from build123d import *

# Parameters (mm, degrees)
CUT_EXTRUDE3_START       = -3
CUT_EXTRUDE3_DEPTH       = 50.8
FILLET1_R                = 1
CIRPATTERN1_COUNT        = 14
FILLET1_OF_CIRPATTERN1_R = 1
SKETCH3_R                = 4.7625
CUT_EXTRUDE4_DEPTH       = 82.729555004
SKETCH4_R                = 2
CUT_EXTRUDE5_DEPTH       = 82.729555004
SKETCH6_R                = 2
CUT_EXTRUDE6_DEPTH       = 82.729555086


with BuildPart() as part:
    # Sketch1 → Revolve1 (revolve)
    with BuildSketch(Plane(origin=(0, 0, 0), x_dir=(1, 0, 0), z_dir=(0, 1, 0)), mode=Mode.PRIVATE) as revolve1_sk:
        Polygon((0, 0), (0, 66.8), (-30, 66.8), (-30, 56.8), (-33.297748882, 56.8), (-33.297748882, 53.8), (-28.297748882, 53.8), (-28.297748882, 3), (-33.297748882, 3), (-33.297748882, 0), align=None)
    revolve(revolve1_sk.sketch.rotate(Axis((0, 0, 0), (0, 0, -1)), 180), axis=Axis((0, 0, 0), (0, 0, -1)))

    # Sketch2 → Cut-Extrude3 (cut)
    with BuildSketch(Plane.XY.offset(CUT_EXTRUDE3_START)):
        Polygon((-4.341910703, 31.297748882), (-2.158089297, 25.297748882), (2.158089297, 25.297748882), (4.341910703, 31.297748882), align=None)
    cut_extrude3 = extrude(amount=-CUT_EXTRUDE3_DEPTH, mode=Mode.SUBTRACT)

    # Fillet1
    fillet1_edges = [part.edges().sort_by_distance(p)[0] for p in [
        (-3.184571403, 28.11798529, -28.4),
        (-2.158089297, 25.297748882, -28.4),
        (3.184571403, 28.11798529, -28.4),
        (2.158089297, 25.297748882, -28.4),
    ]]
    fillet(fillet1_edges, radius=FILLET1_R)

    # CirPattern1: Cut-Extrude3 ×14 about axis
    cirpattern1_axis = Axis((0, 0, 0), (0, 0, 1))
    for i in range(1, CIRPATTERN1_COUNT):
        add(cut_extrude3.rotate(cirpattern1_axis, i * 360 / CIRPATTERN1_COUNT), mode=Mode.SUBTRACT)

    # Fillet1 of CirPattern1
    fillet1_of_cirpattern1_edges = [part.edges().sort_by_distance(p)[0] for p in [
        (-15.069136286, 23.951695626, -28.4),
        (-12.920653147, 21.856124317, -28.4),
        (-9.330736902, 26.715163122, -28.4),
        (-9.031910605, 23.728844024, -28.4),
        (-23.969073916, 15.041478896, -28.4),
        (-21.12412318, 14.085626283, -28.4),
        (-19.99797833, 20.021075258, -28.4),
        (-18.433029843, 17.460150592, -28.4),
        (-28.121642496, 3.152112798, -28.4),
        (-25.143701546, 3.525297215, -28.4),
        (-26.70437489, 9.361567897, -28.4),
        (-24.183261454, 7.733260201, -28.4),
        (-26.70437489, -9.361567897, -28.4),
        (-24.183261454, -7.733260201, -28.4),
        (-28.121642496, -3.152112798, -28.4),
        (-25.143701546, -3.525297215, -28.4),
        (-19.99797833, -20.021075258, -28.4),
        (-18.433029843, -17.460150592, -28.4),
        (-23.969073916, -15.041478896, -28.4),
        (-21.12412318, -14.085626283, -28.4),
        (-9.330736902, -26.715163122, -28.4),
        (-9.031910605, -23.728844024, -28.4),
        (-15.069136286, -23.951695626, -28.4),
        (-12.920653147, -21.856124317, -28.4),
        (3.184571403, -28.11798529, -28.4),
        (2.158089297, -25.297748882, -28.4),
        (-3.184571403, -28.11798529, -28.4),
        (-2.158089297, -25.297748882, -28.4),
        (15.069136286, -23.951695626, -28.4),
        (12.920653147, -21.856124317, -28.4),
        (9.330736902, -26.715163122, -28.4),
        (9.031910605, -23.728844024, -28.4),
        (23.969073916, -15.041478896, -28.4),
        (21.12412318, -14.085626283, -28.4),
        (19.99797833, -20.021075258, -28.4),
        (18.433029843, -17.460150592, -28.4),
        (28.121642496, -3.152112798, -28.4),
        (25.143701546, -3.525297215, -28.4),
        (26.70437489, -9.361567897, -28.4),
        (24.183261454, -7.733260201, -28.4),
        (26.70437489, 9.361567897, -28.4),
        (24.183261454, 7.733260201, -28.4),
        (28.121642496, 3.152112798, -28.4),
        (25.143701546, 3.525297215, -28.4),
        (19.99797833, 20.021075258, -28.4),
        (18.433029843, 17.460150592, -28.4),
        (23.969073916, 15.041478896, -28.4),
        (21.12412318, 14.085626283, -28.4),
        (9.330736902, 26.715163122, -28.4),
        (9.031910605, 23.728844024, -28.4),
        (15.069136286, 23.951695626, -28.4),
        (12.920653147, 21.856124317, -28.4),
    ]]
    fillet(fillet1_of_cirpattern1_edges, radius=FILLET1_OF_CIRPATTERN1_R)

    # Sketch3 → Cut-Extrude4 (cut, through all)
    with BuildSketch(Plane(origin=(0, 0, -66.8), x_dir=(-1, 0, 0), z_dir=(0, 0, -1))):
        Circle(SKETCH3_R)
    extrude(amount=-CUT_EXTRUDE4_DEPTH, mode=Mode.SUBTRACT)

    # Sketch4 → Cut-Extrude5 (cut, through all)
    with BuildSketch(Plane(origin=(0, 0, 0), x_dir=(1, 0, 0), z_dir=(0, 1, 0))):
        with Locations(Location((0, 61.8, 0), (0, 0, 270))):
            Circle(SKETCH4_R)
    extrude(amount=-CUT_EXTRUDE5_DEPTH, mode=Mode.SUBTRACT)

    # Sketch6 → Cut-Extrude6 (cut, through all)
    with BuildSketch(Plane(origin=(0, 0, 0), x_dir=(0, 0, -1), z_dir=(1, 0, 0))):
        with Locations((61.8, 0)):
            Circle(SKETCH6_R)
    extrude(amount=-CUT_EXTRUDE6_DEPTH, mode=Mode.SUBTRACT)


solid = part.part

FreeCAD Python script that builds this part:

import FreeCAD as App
import Part
import Sketcher

V = App.Vector
Q = App.Units.Quantity


def edges_at(feature, points):
    """Names of the edges that pass closest to the given points."""
    edges = feature.Shape.Edges
    near = lambda p: min(range(len(edges)), key=lambda i: edges[i].distToShape(Part.Vertex(*p))[0])
    return sorted({f"Edge{near(p) + 1}" for p in points})

doc = App.newDocument("Part")
body = doc.addObject("PartDesign::Body", "Body")

sketch1 = body.newObject("Sketcher::SketchObject", "Sketch")
sketch1.AttachmentSupport = (doc.getObject("XZ_Plane"), [""])
sketch1.MapMode = "FlatFace"
sketch1.addGeometry([
    Part.LineSegment(V(0, 0, 0), V(0, -66.8, 0)),
    Part.LineSegment(V(0, -66.8, 0), V(-30, -66.8, 0)),
    Part.LineSegment(V(-30, -66.8, 0), V(-30, -56.8, 0)),
    Part.LineSegment(V(-30, -56.8, 0), V(-33.3, -56.8, 0)),
    Part.LineSegment(V(-33.3, -56.8, 0), V(-33.3, -53.8, 0)),
    Part.LineSegment(V(-33.3, -53.8, 0), V(-28.3, -53.8, 0)),
    Part.LineSegment(V(-28.3, -53.8, 0), V(-28.3, -3, 0)),
    Part.LineSegment(V(-28.3, -3, 0), V(-33.3, -3, 0)),
    Part.LineSegment(V(-33.3, -3, 0), V(-33.3, 0, 0)),
    Part.LineSegment(V(-33.3, 0, 0), V(0, 0, 0)),
], False)
sketch1.addConstraint([
    Sketcher.Constraint("Coincident", 0, 2, 1, 1),
    Sketcher.Constraint("Coincident", 1, 2, 2, 1),
    Sketcher.Constraint("Coincident", 2, 2, 3, 1),
    Sketcher.Constraint("Coincident", 3, 2, 4, 1),
    Sketcher.Constraint("Coincident", 4, 2, 5, 1),
    Sketcher.Constraint("Coincident", 5, 2, 6, 1),
    Sketcher.Constraint("Coincident", 6, 2, 7, 1),
    Sketcher.Constraint("Coincident", 7, 2, 8, 1),
    Sketcher.Constraint("Coincident", 8, 2, 9, 1),
    Sketcher.Constraint("Coincident", 9, 2, 0, 1),
    Sketcher.Constraint("Vertical", 0),
    Sketcher.Constraint("Horizontal", 1),
    Sketcher.Constraint("Vertical", 2),
    Sketcher.Constraint("Horizontal", 3),
    Sketcher.Constraint("Vertical", 4),
    Sketcher.Constraint("Horizontal", 5),
    Sketcher.Constraint("Vertical", 6),
    Sketcher.Constraint("Horizontal", 7),
    Sketcher.Constraint("Vertical", 8),
    Sketcher.Constraint("Horizontal", 9),
    Sketcher.Constraint("Coincident", 9, 2, -1, 1),
    Sketcher.Constraint("Vertical", 4, 2, 7, 2),
    Sketcher.Constraint("Equal", 4, 8),
    Sketcher.Constraint("DistanceX", 1, 2, 1, 1, 30.0),
    Sketcher.Constraint("DistanceX", 5, 1, 5, 2, 5.0),
    Sketcher.Constraint("DistanceY", 2, 1, 2, 2, 10.0),
    Sketcher.Constraint("DistanceY", 4, 1, 4, 2, 3.0),
    Sketcher.Constraint("DistanceY", 0, 2, 0, 1, 66.8),
    Sketcher.Constraint("DistanceX", 3, 2, 3, 1, 3.297749),
])
revolution = body.newObject("PartDesign::Revolution", "Revolution")
revolution.Profile = sketch1
revolution.ReferenceAxis = (sketch1, ["V_Axis"])
revolution.Angle = 360

sketch2 = body.newObject("Sketcher::SketchObject", "Sketch001")
sketch2.AttachmentSupport = (doc.getObject("XY_Plane"), [""])
sketch2.MapMode = "FlatFace"
sketch2.AttachmentOffset = App.Placement(V(0, 0, -3), App.Rotation())
sketch2.addGeometry([
    Part.LineSegment(V(-4.3, 31.3, 0), V(-2.2, 25.3, 0)),
    Part.LineSegment(V(-2.2, 25.3, 0), V(2.2, 25.3, 0)),
    Part.LineSegment(V(2.2, 25.3, 0), V(4.3, 31.3, 0)),
    Part.LineSegment(V(4.3, 31.3, 0), V(-4.3, 31.3, 0)),
], False)
sketch2.addConstraint([
    Sketcher.Constraint("Coincident", 0, 2, 1, 1),
    Sketcher.Constraint("Coincident", 1, 2, 2, 1),
    Sketcher.Constraint("Coincident", 2, 2, 3, 1),
    Sketcher.Constraint("Coincident", 3, 2, 0, 1),
    Sketcher.Constraint("Horizontal", 1),
    Sketcher.Constraint("Horizontal", 3),
    Sketcher.Constraint("Equal", 0, 2),
    Sketcher.Constraint("Angle", 0, Q("-70 deg")),
    Sketcher.Constraint("DistanceY", 1, 2, 2, 2, 6.0),
    Sketcher.Constraint("DistanceX", 0, 2, 2, 2, 6.5),
    Sketcher.Constraint("DistanceX", 0, 2, -1, 1, 2.158089),
    Sketcher.Constraint("DistanceY", -1, 1, 0, 2, 25.297749),
])
pocket1 = body.newObject("PartDesign::Pocket", "Pocket")
pocket1.Profile = sketch2
pocket1.Length = 50.8
doc.recompute()

fillet = body.newObject("PartDesign::Fillet", "Fillet")
fillet.Base = (pocket1, edges_at(pocket1, [
    (-3.185, 28.118, -28.4),
    (-2.158, 25.298, -28.4),
    (3.185, 28.118, -28.4),
    (2.158, 25.298, -28.4),
]))
fillet.Radius = 1
doc.recompute()

polarpattern = body.newObject("PartDesign::PolarPattern", "PolarPattern")
polarpattern.Originals = [pocket1]
polarpattern.Axis = (doc.getObject("Z_Axis"), [""])
polarpattern.Angle = 360
polarpattern.Occurrences = 14
body.Tip = polarpattern
doc.recompute()

fillet2 = body.newObject("PartDesign::Fillet", "Fillet001")
fillet2.Base = (polarpattern, edges_at(polarpattern, [
    (-15.069, 23.952, -28.4),
    (-12.921, 21.856, -28.4),
    (-9.331, 26.715, -28.4),
    (-9.032, 23.729, -28.4),
    (-23.969, 15.041, -28.4),
    (-21.124, 14.086, -28.4),
    (-19.998, 20.021, -28.4),
    (-18.433, 17.46, -28.4),
    (-28.122, 3.152, -28.4),
    (-25.144, 3.525, -28.4),
    (-26.704, 9.362, -28.4),
    (-24.183, 7.733, -28.4),
    (-26.704, -9.362, -28.4),
    (-24.183, -7.733, -28.4),
    (-28.122, -3.152, -28.4),
    (-25.144, -3.525, -28.4),
    (-19.998, -20.021, -28.4),
    (-18.433, -17.46, -28.4),
    (-23.969, -15.041, -28.4),
    (-21.124, -14.086, -28.4),
    (-9.331, -26.715, -28.4),
    (-9.032, -23.729, -28.4),
    (-15.069, -23.952, -28.4),
    (-12.921, -21.856, -28.4),
    (3.185, -28.118, -28.4),
    (2.158, -25.298, -28.4),
    (-3.185, -28.118, -28.4),
    (-2.158, -25.298, -28.4),
    (15.069, -23.952, -28.4),
    (12.921, -21.856, -28.4),
    (9.331, -26.715, -28.4),
    (9.032, -23.729, -28.4),
    (23.969, -15.041, -28.4),
    (21.124, -14.086, -28.4),
    (19.998, -20.021, -28.4),
    (18.433, -17.46, -28.4),
    (28.122, -3.152, -28.4),
    (25.144, -3.525, -28.4),
    (26.704, -9.362, -28.4),
    (24.183, -7.733, -28.4),
    (26.704, 9.362, -28.4),
    (24.183, 7.733, -28.4),
    (28.122, 3.152, -28.4),
    (25.144, 3.525, -28.4),
    (19.998, 20.021, -28.4),
    (18.433, 17.46, -28.4),
    (23.969, 15.041, -28.4),
    (21.124, 14.086, -28.4),
    (9.331, 26.715, -28.4),
    (9.032, 23.729, -28.4),
    (15.069, 23.952, -28.4),
    (12.921, 21.856, -28.4),
]))
fillet2.Radius = 1

sketch3 = body.newObject("Sketcher::SketchObject", "Sketch002")
sketch3.AttachmentSupport = (doc.getObject("XY_Plane"), [""])
sketch3.MapMode = "FlatFace"
sketch3.AttachmentOffset = App.Placement(V(0, 0, -66.8), App.Rotation())
sketch3.addGeometry(Part.Circle(V(0, 0, 0), V(0, 0, 1), 4.8), False)
sketch3.addConstraint([
    Sketcher.Constraint("Coincident", 0, 3, -1, 1),
    Sketcher.Constraint("Diameter", 0, 9.525),
])
pocket2 = body.newObject("PartDesign::Pocket", "Pocket001")
pocket2.Profile = sketch3
pocket2.Type = "ThroughAll"
pocket2.Reversed = True

sketch4 = body.newObject("Sketcher::SketchObject", "Sketch003")
sketch4.AttachmentSupport = (doc.getObject("XZ_Plane"), [""])
sketch4.MapMode = "FlatFace"
sketch4.addGeometry(Part.Circle(V(0, -61.8, 0), V(0, 0, 1), 2), False)
sketch4.addConstraint([
    Sketcher.Constraint("PointOnObject", 0, 3, -2),
    Sketcher.Constraint("Diameter", 0, 4.0),
    Sketcher.Constraint("DistanceY", 0, 3, -1, 1, 61.8),
])
pocket3 = body.newObject("PartDesign::Pocket", "Pocket002")
pocket3.Profile = sketch4
pocket3.Type = "ThroughAll"
pocket3.Reversed = True

sketch5 = body.newObject("Sketcher::SketchObject", "Sketch004")
sketch5.AttachmentSupport = (doc.getObject("YZ_Plane"), [""])
sketch5.MapMode = "FlatFace"
sketch5.addGeometry(Part.Circle(V(0, -61.8, 0), V(0, 0, 1), 2), False)
sketch5.addConstraint([
    Sketcher.Constraint("PointOnObject", 0, 3, -2),
    Sketcher.Constraint("Diameter", 0, 4.0),
    Sketcher.Constraint("DistanceY", 0, 3, -1, 1, 61.8),
])
pocket4 = body.newObject("PartDesign::Pocket", "Pocket003")
pocket4.Profile = sketch5
pocket4.Type = "ThroughAll"

doc.recompute()
